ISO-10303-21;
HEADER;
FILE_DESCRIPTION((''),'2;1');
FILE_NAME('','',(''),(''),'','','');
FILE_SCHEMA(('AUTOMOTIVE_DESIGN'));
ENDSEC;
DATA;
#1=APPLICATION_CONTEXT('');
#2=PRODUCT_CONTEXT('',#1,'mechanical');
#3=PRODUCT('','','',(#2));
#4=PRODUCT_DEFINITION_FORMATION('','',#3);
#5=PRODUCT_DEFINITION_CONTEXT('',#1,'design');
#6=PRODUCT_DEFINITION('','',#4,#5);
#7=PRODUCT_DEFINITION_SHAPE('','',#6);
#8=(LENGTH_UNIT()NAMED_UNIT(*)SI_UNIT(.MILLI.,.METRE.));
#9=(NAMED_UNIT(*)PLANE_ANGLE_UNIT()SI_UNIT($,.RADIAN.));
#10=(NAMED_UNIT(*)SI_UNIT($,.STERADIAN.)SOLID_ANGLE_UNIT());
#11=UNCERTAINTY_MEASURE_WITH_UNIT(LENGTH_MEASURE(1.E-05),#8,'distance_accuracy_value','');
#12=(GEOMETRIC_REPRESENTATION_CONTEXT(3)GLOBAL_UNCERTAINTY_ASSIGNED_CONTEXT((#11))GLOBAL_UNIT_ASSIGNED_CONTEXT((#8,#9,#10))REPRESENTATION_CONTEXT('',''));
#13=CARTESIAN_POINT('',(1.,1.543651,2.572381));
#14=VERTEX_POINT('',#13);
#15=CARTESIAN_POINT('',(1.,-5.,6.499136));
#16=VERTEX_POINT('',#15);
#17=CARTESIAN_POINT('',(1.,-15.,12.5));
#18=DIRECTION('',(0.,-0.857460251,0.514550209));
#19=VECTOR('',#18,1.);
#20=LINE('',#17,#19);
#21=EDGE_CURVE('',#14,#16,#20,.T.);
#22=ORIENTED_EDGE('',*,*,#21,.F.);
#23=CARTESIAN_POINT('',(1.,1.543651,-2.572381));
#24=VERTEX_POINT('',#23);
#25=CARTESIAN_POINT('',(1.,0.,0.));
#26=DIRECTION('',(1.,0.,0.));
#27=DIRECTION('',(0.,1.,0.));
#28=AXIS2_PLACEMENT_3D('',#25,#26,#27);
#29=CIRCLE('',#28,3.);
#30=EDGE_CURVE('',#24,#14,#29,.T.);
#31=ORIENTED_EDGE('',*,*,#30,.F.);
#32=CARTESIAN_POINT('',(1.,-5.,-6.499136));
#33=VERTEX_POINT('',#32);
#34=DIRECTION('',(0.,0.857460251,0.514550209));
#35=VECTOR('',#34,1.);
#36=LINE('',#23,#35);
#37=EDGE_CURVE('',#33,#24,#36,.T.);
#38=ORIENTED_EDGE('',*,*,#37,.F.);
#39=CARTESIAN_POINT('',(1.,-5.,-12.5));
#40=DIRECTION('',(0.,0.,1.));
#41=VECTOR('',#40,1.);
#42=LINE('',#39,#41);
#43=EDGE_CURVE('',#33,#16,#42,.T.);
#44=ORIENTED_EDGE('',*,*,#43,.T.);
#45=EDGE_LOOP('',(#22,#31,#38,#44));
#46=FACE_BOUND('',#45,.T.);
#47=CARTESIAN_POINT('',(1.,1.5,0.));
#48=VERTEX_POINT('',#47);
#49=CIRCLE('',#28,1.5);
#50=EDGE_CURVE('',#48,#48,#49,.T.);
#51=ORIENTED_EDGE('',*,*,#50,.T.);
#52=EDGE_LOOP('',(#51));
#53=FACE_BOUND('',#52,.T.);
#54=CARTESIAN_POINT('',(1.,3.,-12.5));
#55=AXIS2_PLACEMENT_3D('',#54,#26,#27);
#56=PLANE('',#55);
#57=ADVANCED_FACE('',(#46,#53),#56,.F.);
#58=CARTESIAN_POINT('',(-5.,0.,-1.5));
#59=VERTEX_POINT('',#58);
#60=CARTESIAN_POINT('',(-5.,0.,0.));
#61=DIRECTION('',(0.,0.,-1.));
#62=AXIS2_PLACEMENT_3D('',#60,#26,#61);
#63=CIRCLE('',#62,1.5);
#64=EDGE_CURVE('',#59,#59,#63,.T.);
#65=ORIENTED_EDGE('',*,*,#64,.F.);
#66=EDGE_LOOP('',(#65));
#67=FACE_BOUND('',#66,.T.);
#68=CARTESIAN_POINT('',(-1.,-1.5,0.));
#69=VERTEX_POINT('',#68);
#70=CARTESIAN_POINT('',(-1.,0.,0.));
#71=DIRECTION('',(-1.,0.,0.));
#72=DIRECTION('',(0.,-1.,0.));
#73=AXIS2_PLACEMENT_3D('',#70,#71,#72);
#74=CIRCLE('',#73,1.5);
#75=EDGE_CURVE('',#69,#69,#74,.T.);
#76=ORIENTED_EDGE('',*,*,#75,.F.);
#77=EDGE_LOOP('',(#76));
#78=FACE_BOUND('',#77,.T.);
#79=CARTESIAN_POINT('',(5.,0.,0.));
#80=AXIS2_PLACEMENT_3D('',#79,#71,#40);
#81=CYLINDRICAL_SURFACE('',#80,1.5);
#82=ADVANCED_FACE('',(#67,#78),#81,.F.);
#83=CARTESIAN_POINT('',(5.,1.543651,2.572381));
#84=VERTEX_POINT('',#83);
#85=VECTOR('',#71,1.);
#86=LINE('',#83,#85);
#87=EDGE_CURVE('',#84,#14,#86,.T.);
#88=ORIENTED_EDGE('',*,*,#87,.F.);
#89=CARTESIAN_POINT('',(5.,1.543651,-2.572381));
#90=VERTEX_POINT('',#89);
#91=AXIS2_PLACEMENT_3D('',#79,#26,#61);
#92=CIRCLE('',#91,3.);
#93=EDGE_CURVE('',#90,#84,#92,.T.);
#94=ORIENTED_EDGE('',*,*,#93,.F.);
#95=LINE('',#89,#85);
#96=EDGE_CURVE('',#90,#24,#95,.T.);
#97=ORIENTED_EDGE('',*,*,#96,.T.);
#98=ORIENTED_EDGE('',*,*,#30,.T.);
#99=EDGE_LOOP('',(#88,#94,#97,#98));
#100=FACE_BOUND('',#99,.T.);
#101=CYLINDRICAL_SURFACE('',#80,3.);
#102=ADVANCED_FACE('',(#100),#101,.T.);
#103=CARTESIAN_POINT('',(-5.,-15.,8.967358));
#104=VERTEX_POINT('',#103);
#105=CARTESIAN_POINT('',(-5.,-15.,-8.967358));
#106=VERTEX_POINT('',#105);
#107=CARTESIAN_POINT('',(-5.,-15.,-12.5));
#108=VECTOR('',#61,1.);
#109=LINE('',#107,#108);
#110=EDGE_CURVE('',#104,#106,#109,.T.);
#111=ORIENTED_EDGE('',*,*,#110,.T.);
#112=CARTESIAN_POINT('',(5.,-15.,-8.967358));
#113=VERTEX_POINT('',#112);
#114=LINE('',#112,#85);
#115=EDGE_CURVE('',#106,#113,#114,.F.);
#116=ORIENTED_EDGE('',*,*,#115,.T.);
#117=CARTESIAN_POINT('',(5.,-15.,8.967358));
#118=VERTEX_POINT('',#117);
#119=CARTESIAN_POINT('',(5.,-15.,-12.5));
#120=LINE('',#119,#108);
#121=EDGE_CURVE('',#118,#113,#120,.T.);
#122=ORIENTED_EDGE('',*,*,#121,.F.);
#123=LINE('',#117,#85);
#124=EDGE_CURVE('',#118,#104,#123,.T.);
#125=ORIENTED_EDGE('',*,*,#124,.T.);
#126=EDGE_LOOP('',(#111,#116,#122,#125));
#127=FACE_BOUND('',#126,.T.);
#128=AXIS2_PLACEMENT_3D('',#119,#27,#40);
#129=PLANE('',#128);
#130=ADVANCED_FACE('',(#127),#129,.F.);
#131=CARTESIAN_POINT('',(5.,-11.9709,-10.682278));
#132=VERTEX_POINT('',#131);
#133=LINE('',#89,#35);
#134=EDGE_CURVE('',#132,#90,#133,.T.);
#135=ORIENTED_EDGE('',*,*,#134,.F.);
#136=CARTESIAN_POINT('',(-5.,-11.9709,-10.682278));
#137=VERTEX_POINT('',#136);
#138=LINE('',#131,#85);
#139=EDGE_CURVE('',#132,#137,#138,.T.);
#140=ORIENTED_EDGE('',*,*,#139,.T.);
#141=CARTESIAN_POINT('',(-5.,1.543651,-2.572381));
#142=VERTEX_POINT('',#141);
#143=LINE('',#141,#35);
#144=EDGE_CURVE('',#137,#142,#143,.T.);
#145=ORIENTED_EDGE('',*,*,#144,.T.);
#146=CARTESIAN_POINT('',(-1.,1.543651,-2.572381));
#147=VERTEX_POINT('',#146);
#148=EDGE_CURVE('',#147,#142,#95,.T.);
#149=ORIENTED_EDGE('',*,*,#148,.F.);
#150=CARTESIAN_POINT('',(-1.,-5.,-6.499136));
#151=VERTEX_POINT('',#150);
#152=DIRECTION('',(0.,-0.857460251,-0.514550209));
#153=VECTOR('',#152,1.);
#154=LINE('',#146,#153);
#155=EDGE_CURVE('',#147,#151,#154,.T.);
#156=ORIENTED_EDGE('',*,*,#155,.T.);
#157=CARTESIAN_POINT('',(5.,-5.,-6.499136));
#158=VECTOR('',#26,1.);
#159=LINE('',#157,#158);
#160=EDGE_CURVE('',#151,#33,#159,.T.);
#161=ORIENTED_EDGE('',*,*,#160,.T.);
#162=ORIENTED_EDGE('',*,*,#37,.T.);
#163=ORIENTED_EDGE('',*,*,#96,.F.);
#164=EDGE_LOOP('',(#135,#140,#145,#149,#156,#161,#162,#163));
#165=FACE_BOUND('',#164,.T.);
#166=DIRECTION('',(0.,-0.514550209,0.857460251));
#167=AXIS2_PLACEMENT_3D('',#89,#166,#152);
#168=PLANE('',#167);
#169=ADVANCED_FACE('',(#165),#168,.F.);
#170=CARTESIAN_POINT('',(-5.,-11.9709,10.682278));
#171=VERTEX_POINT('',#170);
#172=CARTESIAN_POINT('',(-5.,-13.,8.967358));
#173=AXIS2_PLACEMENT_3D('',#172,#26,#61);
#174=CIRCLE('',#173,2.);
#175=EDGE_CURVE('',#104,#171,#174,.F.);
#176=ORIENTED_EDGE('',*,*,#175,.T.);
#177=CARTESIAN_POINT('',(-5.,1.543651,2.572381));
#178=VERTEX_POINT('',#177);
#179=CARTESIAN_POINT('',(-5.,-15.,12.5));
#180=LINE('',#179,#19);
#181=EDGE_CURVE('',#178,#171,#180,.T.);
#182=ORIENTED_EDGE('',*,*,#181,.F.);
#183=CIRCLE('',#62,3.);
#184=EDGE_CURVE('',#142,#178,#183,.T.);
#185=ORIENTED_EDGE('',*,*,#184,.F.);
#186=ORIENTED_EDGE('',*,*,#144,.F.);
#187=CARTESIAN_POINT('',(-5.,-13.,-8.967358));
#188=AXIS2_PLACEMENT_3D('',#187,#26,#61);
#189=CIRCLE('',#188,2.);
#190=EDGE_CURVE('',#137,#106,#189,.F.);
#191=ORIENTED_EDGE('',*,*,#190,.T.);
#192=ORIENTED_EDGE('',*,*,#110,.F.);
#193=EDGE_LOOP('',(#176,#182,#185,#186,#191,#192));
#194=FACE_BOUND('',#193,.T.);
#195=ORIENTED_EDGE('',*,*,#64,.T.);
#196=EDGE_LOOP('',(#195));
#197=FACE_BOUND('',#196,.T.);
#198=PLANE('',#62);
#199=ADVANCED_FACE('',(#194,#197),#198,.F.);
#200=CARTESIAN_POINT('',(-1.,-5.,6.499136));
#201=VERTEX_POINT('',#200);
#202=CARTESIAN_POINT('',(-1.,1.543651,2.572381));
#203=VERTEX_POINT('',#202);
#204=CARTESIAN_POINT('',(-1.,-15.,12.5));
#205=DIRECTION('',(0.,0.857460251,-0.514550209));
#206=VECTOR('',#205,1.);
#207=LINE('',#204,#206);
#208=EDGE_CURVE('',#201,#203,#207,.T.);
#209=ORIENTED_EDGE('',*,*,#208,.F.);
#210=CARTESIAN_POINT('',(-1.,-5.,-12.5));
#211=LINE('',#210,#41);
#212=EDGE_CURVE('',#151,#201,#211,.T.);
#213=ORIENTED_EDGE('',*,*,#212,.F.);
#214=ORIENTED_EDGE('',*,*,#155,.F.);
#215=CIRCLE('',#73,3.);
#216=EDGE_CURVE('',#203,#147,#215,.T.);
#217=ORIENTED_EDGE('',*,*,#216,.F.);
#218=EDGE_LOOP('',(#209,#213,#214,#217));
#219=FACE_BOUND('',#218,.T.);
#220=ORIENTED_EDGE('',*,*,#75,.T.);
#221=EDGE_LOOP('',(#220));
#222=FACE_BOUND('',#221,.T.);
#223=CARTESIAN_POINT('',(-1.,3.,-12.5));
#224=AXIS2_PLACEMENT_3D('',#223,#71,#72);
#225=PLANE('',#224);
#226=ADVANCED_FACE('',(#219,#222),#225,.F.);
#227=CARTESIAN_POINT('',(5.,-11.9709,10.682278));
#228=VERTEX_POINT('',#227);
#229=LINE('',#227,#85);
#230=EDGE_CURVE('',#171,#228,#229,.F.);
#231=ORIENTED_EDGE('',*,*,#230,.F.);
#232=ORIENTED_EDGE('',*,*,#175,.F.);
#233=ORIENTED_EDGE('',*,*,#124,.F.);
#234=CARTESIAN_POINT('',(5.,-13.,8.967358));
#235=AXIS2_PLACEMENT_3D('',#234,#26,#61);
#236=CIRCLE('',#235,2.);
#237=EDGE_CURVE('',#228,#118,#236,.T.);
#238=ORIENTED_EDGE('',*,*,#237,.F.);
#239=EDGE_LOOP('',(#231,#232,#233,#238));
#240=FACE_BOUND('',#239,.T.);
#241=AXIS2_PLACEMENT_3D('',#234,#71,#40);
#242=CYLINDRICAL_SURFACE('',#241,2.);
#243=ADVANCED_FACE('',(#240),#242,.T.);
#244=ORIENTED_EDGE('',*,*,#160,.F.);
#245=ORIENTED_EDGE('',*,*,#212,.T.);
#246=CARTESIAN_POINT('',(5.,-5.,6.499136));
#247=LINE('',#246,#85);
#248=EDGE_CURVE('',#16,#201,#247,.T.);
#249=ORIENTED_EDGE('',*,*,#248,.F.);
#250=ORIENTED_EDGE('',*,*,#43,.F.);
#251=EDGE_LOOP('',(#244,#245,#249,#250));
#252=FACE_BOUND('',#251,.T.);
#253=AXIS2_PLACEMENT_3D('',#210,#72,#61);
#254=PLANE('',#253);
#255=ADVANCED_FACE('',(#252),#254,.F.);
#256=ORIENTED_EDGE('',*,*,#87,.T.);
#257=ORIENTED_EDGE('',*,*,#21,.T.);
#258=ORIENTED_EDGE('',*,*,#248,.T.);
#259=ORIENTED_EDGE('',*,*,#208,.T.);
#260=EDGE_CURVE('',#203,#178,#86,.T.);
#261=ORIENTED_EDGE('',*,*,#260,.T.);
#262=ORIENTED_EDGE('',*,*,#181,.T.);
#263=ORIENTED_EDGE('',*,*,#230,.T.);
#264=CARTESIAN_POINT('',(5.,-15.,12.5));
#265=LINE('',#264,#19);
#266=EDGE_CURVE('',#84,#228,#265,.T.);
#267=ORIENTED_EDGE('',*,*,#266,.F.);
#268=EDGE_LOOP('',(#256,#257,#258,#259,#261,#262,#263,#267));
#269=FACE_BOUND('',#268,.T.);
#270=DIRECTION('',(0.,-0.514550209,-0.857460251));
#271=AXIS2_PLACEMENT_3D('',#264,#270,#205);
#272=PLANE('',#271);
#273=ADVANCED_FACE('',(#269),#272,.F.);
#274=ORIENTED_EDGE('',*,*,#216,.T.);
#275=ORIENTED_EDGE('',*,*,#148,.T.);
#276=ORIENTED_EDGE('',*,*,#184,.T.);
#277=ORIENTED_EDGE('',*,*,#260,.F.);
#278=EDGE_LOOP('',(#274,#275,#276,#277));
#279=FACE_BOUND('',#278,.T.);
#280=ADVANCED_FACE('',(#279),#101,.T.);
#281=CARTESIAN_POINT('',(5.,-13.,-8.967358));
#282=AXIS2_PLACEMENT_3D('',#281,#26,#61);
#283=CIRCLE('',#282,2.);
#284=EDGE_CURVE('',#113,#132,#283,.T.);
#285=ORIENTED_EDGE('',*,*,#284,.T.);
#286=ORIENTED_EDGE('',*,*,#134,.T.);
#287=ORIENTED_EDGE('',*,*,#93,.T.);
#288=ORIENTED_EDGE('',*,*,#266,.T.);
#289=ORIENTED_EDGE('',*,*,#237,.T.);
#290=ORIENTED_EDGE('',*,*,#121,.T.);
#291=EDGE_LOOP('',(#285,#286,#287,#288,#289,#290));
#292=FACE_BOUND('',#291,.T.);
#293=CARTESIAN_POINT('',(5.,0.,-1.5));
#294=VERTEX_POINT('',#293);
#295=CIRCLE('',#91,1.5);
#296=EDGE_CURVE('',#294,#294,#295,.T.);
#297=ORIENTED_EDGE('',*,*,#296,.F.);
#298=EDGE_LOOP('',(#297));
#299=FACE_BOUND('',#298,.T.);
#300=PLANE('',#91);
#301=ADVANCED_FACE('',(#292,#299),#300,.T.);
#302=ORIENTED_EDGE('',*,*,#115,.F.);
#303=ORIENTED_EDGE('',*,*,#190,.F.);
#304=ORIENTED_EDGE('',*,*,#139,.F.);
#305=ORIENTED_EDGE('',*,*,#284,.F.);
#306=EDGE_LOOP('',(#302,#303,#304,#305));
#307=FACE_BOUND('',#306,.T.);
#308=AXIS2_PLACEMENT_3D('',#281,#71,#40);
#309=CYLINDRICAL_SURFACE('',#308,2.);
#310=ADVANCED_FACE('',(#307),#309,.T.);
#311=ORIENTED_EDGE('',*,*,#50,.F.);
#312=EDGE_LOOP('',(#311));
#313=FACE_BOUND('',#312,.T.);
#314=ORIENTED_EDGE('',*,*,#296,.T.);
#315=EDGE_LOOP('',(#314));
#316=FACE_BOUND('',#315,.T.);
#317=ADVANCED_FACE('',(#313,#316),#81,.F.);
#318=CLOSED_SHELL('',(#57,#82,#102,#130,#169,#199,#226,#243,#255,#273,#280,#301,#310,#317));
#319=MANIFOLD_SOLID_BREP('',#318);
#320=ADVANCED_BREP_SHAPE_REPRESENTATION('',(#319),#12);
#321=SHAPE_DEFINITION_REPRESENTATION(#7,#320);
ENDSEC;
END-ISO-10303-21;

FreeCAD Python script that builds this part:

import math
import FreeCAD as App
import Part
import Sketcher

V = App.Vector
Q = App.Units.Quantity


def edges_at(feature, points):
    """Names of the edges that pass closest to the given points."""
    edges = feature.Shape.Edges
    near = lambda p: min(range(len(edges)), key=lambda i: edges[i].distToShape(Part.Vertex(*p))[0])
    return sorted({f"Edge{near(p) + 1}" for p in points})


def add_polygon(sketch, points):
    """Adds a closed chain of lines whose ends are joined by coincident constraints."""
    first, n = sketch.GeometryCount, len(points)
    for a, b in zip(points, points[1:] + points[:1]):
        sketch.addGeometry(Part.LineSegment(App.Vector(*a, 0), App.Vector(*b, 0)), False)
    for i in range(n):
        sketch.addConstraint(Sketcher.Constraint("Coincident", first + i, 2, first + (i + 1) % n, 1))

doc = App.newDocument("Part")
body = doc.addObject("PartDesign::Body", "Body")

sketch1 = body.newObject("Sketcher::SketchObject", "Sketch")
sketch1.AttachmentSupport = (doc.getObject("YZ_Plane"), [""])
sketch1.MapMode = "FlatFace"
sketch1.addGeometry([
    Part.LineSegment(V(-15, -12.5, 0), V(1.5, -2.6, 0)),
    Part.ArcOfCircle(Part.Circle(V(0, 0, 0), V(0, 0, 1), 3), math.radians(-59), math.radians(59)),
    Part.LineSegment(V(1.5, 2.6, 0), V(-15, 12.5, 0)),
    Part.LineSegment(V(-15, 12.5, 0), V(-15, -12.5, 0)),
    Part.Circle(V(0, 0, 0), V(0, 0, 1), 1.5),
], False)
sketch1.addConstraint([
    Sketcher.Constraint("Tangent", 0, 2, 1, 1),
    Sketcher.Constraint("Tangent", 1, 2, 2, 1),
    Sketcher.Constraint("Coincident", 2, 2, 3, 1),
    Sketcher.Constraint("Coincident", 3, 2, 0, 1),
    Sketcher.Constraint("Vertical", 3),
    Sketcher.Constraint("Coincident", 1, 3, -1, 1),
    Sketcher.Constraint("Coincident", 4, 3, -1, 1),
    Sketcher.Constraint("Vertical", 0, 2, 1, 2),
    Sketcher.Constraint("Diameter", 4, Q("3 mm")),
    Sketcher.Constraint("Radius", 1, Q("3 mm")),
    Sketcher.Constraint("DistanceY", 3, 2, 3, 1, Q("25 mm")),
    Sketcher.Constraint("DistanceX", 2, 2, -1, 1, Q("15 mm")),
])
pad1 = body.newObject("PartDesign::Pad", "Pad")
pad1.Profile = sketch1
pad1.Length = 10
pad1.Midplane = True

sketch2 = body.newObject("Sketcher::SketchObject", "Sketch001")
sketch2.AttachmentSupport = (doc.getObject("XY_Plane"), [""])
sketch2.MapMode = "FlatFace"
add_polygon(sketch2, [(-1, 3), (-1, -5), (1, -5), (1, 3)])
sketch2.addConstraint([
    Sketcher.Constraint("Vertical", 0),
    Sketcher.Constraint("Horizontal", 1),
    Sketcher.Constraint("Vertical", 2),
    Sketcher.Constraint("Horizontal", 3),
    Sketcher.Constraint("DistanceX", 1, 1, 1, 2, Q("2 mm")),
    Sketcher.Constraint("DistanceY", 0, 2, 0, 1, Q("8 mm")),
    Sketcher.Constraint("DistanceX", 0, 2, -1, 1, Q("1 mm")),
    Sketcher.Constraint("DistanceY", 0, 2, -1, 1, Q("5 mm")),
])
pocket1 = body.newObject("PartDesign::Pocket", "Pocket")
pocket1.Profile = sketch2
pocket1.Type = "ThroughAll"
pocket1.Midplane = True
doc.recompute()

fillet = body.newObject("PartDesign::Fillet", "Fillet")
fillet.Base = (pocket1, edges_at(pocket1, [(0, -15, -12.5), (0, -15, 12.5)]))
fillet.Radius = 2

doc.recompute()
